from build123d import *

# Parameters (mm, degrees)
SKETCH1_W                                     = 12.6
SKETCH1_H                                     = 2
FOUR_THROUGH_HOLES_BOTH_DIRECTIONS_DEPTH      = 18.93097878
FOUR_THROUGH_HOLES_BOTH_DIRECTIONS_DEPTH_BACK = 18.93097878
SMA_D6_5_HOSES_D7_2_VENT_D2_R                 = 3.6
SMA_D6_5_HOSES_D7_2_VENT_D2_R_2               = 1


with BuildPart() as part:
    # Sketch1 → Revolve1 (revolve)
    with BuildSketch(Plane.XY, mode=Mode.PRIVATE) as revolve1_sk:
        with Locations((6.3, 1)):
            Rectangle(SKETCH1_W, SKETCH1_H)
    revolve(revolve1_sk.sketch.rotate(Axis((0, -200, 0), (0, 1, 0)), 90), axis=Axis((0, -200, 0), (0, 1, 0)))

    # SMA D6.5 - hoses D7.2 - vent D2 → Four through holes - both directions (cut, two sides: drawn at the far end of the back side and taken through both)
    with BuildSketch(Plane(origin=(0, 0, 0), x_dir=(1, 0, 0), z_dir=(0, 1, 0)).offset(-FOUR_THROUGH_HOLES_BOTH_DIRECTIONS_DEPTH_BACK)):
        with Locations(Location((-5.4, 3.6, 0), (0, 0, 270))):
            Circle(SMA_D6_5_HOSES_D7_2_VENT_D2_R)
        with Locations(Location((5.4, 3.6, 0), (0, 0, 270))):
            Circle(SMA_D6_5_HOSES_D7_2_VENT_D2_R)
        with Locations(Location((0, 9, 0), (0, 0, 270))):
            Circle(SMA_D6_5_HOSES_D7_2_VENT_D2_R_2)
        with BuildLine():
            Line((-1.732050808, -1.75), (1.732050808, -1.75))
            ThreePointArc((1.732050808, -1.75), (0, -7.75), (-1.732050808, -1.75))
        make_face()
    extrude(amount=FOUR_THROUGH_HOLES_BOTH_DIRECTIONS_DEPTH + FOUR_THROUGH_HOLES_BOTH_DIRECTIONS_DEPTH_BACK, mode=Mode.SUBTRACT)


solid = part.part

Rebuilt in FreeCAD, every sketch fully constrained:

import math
import FreeCAD as App
import Part
import Sketcher
Q = App.Units.Quantity


def add_polygon(sketch, points):
    """Adds a closed chain of lines whose ends are joined by coincident constraints."""
    first, n = sketch.GeometryCount, len(points)
    for a, b in zip(points, points[1:] + points[:1]):
        sketch.addGeometry(Part.LineSegment(App.Vector(*a, 0), App.Vector(*b, 0)), False)
    for i in range(n):
        sketch.addConstraint(Sketcher.Constraint("Coincident", first + i, 2, first + (i + 1) % n, 1))

doc = App.newDocument("Part")
body = doc.addObject("PartDesign::Body", "Body")

# Sketch on XY plane
sketch1 = body.newObject("Sketcher::SketchObject", "Sketch")
sketch1.AttachmentSupport = (doc.getObject("XY_Plane"), [""])
sketch1.MapMode = "FlatFace"
add_polygon(sketch1, [(0, 2), (0, 0), (12.6, 0), (12.6, 2)])  # lines 0-3
sketch1.addConstraint(Sketcher.Constraint("Vertical", 0))
sketch1.addConstraint(Sketcher.Constraint("Horizontal", 1))
sketch1.addConstraint(Sketcher.Constraint("Vertical", 2))
sketch1.addConstraint(Sketcher.Constraint("Horizontal", 3))
sketch1.addConstraint(Sketcher.Constraint("Coincident", 0, 2, -1, 1))
sketch1.addConstraint(Sketcher.Constraint("DistanceY", 0, 2, 0, 1, Q("2 mm")))
sketch1.addConstraint(Sketcher.Constraint("DistanceX", 1, 1, 1, 2, Q("12.6 mm")))
revolution = body.newObject("PartDesign::Revolution", "Revolution")
revolution.Profile = sketch1
revolution.ReferenceAxis = (sketch1, ["V_Axis"])
revolution.Angle = 360

# Sketch on XZ plane
sketch2 = body.newObject("Sketcher::SketchObject", "Sketch001")
sketch2.AttachmentSupport = (doc.getObject("XZ_Plane"), [""])
sketch2.MapMode = "FlatFace"
sketch2.addGeometry(Part.Circle(App.Vector(-5.4, -3.6, 0), App.Vector(0, 0, 1), 3.6), False)
sketch2.addGeometry(Part.Circle(App.Vector(5.4, -3.6, 0), App.Vector(0, 0, 1), 3.6), False)
sketch2.addGeometry(Part.Circle(App.Vector(0, -9, 0), App.Vector(0, 0, 1), 1), False)
sketch2.addGeometry(Part.LineSegment(App.Vector(1.732051, 1.75, 0), App.Vector(-1.732051, 1.75, 0)), False)
sketch2.addGeometry(Part.ArcOfCircle(Part.Circle(App.Vector(0, 4.5, 0), App.Vector(0, 0, 1), 3.25), math.radians(-57.795772), math.radians(237.795772)), False)
sketch2.addConstraint(Sketcher.Constraint("Coincident", 3, 1, 4, 1))
sketch2.addConstraint(Sketcher.Constraint("Coincident", 4, 2, 3, 2))
sketch2.addConstraint(Sketcher.Constraint("Horizontal", 3))
sketch2.addConstraint(Sketcher.Constraint("Equal", 0, 1))
sketch2.addConstraint(Sketcher.Constraint("Symmetric", 0, 3, 1, 3, -2))
sketch2.addConstraint(Sketcher.Constraint("PointOnObject", 2, 3, -2))
sketch2.addConstraint(Sketcher.Constraint("PointOnObject", 4, 3, -2))
sketch2.addConstraint(Sketcher.Constraint("Diameter", 2, Q("2 mm")))
sketch2.addConstraint(Sketcher.Constraint("Diameter", 0, Q("7.2 mm")))
sketch2.addConstraint(Sketcher.Constraint("Radius", 4, Q("3.25 mm")))
sketch2.addConstraint(Sketcher.Constraint("DistanceY", 2, 3, -1, 1, Q("9 mm")))
sketch2.addConstraint(Sketcher.Constraint("DistanceX", 0, 3, -1, 1, Q("5.4 mm")))
sketch2.addConstraint(Sketcher.Constraint("DistanceY", 0, 3, -1, 1, Q("3.6 mm")))
sketch2.addConstraint(Sketcher.Constraint("DistanceY", -1, 1, 4, 3, Q("4.5 mm")))
sketch2.addConstraint(Sketcher.Constraint("DistanceY", -1, 1, 3, 1, Q("1.75 mm")))
pocket1 = body.newObject("PartDesign::Pocket", "Pocket")
pocket1.Profile = sketch2
pocket1.Type = "ThroughAll"
pocket1.Midplane = True

doc.recompute()
